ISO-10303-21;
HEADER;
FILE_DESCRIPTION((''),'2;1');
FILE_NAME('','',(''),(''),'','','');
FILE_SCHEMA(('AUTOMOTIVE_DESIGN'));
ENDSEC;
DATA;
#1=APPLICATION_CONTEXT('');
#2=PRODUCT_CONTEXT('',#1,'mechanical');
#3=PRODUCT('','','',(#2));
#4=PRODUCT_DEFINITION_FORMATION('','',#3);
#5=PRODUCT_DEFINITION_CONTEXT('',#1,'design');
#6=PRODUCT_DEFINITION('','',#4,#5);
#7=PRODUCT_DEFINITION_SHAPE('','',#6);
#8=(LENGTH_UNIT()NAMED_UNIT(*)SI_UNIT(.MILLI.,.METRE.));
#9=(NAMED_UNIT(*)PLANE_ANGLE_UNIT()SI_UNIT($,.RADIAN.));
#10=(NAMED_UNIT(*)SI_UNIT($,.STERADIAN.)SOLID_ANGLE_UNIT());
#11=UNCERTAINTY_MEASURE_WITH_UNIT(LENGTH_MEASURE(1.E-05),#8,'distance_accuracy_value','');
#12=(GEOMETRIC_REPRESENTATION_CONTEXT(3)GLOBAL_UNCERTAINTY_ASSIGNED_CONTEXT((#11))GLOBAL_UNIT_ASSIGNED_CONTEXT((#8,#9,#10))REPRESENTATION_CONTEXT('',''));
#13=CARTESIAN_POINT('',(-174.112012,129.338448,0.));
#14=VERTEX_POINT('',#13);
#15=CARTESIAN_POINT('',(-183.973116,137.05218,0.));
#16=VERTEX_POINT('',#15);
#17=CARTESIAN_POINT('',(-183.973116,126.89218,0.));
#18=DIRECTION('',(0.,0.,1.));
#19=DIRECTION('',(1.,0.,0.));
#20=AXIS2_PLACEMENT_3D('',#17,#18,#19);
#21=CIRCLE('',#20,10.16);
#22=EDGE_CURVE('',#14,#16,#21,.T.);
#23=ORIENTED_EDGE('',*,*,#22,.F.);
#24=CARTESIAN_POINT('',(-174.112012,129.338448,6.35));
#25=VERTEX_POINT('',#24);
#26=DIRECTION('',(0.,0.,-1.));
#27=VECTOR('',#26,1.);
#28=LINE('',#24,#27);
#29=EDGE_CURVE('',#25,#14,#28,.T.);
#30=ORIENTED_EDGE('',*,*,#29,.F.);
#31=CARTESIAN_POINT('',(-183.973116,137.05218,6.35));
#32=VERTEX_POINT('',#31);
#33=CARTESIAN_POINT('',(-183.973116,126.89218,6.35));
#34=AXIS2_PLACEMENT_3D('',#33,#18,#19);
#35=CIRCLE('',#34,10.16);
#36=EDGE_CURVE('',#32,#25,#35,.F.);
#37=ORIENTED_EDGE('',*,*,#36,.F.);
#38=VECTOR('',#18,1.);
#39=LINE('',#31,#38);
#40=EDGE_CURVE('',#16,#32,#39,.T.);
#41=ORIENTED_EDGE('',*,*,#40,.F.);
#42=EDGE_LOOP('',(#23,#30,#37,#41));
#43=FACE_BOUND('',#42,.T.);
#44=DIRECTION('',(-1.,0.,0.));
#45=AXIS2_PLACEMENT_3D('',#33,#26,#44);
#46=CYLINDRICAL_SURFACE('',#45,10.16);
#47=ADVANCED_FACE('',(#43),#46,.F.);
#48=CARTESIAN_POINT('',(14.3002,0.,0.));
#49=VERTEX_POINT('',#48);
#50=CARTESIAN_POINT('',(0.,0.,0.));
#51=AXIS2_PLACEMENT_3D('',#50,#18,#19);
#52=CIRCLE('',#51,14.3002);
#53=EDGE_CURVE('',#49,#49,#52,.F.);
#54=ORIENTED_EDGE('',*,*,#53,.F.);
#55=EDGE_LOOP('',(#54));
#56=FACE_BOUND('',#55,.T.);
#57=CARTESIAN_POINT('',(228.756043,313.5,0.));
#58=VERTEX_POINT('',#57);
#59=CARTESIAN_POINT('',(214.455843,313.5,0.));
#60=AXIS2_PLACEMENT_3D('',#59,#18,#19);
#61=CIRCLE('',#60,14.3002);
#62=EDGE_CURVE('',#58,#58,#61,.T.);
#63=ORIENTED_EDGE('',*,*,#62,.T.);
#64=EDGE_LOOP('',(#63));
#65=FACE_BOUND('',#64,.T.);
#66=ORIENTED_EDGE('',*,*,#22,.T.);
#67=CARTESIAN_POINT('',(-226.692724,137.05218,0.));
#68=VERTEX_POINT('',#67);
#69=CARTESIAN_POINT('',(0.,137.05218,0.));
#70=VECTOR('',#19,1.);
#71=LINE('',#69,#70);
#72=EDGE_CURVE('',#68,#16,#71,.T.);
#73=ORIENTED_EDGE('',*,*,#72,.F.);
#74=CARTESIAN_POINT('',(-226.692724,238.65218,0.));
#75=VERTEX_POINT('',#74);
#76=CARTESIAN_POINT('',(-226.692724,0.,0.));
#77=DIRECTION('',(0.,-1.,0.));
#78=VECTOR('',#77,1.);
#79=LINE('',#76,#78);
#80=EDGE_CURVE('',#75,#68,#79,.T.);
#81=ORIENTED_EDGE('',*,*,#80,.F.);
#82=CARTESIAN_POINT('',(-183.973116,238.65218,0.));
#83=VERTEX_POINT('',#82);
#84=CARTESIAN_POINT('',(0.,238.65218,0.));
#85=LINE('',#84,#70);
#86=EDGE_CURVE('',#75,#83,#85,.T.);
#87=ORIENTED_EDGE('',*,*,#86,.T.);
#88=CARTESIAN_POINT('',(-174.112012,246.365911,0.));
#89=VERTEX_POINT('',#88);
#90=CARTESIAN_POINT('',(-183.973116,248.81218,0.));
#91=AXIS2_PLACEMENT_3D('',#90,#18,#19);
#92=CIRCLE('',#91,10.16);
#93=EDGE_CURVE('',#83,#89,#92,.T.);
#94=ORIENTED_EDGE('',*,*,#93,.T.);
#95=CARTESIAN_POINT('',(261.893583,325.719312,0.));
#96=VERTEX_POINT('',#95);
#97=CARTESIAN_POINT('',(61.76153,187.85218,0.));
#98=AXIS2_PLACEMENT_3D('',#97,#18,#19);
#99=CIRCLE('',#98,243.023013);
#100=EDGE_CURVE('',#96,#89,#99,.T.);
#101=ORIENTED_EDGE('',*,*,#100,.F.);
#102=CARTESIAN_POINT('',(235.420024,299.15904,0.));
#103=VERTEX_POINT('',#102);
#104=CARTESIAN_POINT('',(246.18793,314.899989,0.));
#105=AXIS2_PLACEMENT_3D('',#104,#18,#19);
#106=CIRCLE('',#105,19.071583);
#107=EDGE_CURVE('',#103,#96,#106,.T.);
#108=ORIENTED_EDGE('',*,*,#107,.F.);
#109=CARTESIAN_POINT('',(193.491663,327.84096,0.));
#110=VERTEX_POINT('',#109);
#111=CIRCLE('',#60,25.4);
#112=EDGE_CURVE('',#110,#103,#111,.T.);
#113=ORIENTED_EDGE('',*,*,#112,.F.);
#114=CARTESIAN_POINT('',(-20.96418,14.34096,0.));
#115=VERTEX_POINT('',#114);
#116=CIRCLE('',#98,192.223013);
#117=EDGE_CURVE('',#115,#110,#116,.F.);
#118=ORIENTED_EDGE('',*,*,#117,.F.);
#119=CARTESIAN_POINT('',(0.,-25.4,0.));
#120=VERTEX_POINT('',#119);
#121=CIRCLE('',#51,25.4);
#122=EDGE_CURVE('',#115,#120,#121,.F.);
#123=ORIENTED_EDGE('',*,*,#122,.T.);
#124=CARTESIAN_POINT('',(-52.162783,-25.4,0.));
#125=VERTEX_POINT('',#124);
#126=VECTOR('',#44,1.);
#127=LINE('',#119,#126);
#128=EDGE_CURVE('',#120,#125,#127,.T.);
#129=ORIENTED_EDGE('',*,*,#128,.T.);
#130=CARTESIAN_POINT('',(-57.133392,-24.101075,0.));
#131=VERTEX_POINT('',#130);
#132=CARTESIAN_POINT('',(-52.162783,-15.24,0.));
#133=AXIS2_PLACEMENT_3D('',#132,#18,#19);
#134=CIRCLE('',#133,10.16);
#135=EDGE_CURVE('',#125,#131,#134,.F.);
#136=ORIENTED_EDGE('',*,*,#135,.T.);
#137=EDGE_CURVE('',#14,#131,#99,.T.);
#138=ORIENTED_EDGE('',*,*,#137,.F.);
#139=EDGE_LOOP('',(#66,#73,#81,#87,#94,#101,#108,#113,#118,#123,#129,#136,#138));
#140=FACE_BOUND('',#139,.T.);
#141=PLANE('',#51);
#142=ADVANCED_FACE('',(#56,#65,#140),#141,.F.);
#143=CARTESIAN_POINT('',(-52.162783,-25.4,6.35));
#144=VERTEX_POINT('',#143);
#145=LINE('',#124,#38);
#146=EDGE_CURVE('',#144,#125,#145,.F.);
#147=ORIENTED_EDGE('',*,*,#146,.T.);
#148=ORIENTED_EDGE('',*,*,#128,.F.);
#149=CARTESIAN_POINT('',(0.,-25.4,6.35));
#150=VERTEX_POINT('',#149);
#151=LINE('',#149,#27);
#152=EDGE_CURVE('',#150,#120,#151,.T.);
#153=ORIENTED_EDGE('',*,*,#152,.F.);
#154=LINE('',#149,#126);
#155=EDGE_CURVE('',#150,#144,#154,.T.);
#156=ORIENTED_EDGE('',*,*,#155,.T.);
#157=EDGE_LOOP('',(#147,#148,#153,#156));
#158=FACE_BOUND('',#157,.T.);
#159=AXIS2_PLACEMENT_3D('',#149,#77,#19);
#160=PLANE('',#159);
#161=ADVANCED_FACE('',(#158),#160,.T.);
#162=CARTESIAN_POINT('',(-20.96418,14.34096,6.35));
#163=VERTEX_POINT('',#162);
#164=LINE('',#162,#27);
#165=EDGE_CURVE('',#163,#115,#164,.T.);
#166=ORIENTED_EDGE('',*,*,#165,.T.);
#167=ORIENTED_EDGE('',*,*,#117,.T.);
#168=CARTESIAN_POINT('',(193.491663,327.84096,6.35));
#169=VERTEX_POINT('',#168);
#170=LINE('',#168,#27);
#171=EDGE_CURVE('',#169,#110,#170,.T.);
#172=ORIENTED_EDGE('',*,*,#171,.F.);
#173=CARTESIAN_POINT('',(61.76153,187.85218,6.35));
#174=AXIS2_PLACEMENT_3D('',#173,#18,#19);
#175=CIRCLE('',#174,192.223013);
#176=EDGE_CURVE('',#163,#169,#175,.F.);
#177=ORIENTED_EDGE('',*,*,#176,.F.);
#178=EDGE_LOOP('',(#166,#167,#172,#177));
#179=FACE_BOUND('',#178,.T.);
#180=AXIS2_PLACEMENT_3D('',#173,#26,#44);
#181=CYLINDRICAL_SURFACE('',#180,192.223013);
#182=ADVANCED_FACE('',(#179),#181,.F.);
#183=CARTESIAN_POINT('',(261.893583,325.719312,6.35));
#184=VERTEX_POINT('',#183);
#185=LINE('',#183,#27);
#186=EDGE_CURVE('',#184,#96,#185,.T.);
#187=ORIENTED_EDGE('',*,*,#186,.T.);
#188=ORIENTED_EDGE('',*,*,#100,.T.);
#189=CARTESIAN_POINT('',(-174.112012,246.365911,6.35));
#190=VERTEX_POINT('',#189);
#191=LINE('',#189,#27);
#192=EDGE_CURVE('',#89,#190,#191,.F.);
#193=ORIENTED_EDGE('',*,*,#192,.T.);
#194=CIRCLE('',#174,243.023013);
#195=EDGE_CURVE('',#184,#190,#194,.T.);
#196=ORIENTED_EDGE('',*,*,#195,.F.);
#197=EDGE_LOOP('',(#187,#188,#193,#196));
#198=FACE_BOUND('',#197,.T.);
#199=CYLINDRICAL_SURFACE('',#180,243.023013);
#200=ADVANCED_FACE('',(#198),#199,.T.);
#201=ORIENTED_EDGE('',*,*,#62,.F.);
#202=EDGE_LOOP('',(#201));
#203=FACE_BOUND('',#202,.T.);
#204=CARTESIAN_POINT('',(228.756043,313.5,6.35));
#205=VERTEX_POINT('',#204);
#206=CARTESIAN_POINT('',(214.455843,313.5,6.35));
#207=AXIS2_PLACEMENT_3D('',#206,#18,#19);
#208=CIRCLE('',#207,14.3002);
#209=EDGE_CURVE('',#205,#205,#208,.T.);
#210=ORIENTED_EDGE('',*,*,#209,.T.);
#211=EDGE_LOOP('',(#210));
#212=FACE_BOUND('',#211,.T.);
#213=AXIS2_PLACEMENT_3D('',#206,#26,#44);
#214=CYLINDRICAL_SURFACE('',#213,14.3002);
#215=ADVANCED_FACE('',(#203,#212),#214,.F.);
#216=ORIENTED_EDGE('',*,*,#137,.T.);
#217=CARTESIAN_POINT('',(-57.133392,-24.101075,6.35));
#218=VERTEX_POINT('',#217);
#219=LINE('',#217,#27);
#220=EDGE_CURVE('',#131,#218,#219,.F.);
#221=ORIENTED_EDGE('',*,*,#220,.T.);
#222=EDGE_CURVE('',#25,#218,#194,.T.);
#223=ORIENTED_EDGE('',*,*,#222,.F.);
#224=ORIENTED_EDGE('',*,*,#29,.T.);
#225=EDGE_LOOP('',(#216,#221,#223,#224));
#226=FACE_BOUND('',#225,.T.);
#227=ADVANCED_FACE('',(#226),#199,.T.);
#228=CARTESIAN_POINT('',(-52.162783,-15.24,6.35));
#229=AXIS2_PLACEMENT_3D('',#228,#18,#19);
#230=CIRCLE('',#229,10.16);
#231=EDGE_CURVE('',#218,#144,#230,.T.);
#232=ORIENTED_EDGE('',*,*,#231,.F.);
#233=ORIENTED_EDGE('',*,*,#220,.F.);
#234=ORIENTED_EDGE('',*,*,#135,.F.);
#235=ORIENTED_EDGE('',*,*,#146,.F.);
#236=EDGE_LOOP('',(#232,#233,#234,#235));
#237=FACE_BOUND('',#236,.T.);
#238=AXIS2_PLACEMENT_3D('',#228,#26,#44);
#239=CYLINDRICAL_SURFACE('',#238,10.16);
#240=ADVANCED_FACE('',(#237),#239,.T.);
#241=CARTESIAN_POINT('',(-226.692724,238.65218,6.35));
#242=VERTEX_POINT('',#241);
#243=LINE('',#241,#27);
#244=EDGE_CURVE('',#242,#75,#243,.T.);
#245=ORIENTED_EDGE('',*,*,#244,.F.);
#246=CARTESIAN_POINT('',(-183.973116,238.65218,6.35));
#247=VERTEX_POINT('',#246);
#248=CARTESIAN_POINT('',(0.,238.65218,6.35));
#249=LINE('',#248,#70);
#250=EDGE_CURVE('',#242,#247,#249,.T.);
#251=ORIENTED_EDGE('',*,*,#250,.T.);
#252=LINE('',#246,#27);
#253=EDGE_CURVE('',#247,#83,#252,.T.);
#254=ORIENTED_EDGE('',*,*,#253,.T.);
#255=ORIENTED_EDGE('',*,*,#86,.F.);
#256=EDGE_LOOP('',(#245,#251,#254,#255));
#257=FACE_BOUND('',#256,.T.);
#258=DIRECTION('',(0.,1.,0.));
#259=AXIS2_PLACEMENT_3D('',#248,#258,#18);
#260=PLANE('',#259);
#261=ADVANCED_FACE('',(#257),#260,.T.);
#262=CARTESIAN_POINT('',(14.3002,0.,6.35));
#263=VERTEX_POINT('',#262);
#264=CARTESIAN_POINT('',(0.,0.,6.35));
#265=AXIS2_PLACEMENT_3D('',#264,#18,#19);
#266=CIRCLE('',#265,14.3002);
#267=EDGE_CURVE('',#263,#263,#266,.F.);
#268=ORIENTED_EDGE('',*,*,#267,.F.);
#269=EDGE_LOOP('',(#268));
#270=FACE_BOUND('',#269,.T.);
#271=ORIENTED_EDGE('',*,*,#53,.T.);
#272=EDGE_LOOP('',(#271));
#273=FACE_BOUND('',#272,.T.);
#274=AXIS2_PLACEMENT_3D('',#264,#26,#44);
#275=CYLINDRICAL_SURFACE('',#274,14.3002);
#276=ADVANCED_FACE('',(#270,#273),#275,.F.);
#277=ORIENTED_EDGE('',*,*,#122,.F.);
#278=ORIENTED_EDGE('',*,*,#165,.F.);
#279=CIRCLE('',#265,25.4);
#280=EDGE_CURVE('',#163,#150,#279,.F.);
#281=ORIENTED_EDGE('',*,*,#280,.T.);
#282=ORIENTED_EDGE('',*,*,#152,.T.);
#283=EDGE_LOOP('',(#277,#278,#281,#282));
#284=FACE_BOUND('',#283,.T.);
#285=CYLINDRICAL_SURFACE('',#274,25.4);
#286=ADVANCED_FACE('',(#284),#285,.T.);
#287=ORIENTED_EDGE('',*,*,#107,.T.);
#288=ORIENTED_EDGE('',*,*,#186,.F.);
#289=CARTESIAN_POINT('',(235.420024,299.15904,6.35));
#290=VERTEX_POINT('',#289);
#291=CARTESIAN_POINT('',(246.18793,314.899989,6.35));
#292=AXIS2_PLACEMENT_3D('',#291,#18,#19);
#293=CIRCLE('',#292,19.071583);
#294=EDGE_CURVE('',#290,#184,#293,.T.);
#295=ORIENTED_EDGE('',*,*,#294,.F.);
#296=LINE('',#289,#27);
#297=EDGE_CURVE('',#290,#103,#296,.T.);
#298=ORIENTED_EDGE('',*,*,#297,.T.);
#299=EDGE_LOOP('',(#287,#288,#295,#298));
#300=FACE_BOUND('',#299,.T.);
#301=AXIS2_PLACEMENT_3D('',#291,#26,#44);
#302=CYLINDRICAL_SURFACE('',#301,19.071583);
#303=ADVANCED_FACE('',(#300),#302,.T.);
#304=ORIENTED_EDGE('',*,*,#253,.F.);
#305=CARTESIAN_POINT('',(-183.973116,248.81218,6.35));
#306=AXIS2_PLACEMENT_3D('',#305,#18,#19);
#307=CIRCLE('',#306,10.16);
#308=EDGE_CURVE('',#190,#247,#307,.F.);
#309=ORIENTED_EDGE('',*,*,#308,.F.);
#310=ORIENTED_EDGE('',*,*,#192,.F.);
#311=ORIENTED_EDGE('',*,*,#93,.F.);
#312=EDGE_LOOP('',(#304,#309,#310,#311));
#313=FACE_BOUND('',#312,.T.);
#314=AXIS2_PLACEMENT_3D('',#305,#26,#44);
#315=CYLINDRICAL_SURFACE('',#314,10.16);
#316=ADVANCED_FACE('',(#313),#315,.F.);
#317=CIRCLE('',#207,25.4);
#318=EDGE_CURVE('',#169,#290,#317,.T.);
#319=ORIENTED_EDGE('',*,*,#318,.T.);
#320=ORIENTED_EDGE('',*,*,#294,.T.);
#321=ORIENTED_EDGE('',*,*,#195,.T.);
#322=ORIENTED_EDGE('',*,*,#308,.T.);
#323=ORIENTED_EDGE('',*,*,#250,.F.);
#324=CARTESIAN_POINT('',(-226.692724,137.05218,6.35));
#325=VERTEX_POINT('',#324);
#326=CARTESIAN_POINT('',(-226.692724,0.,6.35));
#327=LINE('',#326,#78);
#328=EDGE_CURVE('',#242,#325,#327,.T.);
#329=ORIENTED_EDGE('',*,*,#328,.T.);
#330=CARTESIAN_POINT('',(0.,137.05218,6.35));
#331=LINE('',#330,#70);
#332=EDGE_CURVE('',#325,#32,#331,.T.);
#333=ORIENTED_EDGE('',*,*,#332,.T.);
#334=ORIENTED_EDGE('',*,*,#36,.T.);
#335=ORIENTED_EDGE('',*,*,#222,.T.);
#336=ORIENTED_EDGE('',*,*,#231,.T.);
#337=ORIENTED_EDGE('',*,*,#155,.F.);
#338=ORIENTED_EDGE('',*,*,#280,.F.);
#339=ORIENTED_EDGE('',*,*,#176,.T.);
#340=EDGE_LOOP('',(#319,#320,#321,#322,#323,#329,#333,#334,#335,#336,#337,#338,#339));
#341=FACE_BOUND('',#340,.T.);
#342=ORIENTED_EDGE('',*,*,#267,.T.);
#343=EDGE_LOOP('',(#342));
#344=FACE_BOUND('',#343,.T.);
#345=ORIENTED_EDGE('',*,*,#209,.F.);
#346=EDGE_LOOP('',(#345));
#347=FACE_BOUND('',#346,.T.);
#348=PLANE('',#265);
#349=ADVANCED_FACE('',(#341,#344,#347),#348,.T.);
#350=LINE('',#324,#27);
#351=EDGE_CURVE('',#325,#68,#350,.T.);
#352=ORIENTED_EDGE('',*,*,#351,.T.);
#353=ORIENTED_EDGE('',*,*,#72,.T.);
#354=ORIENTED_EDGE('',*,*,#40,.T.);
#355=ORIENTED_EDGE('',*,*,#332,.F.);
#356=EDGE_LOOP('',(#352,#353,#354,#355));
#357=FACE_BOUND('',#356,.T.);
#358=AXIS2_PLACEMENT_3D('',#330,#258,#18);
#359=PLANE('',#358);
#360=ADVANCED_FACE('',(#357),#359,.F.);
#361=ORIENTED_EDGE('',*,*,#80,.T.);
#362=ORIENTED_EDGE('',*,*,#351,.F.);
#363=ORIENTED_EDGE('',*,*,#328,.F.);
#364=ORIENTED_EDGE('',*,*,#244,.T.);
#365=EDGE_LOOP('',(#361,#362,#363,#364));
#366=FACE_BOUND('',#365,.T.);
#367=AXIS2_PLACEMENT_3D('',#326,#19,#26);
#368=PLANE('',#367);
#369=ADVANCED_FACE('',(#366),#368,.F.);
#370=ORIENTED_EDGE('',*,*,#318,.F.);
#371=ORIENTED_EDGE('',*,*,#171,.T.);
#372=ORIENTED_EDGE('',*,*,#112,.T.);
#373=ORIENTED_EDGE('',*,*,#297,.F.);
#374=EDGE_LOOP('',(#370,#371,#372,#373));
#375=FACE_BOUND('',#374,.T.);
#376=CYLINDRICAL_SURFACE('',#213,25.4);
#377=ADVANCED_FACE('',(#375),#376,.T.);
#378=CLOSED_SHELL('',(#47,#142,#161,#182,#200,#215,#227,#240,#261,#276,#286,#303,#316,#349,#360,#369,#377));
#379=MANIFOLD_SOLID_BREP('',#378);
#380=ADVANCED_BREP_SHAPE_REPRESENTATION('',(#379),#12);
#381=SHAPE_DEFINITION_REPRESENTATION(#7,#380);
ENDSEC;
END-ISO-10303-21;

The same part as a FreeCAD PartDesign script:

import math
import FreeCAD as App
import Part
import Sketcher
Q = App.Units.Quantity


def edges_at(feature, points):
    """Names of the edges that pass closest to the given points."""
    edges = feature.Shape.Edges
    near = lambda p: min(range(len(edges)), key=lambda i: edges[i].distToShape(Part.Vertex(*p))[0])
    return sorted({f"Edge{near(p) + 1}" for p in points})

doc = App.newDocument("Part")
body = doc.addObject("PartDesign::Body", "Body")

# Sketch on XY plane
sketch1 = body.newObject("Sketcher::SketchObject", "Sketch")
sketch1.AttachmentSupport = (doc.getObject("XY_Plane"), [""])
sketch1.MapMode = "FlatFace"
sketch1.addGeometry([
    Part.LineSegment(App.Vector(-54.787569, -25.4, 0), App.Vector(0, -25.4, 0)),  # 0
    Part.ArcOfCircle(Part.Circle(App.Vector(0, 0, 0), App.Vector(0, 0, 1), 25.4), math.radians(-90), math.radians(145.625152)),  # 1
    Part.ArcOfCircle(Part.Circle(App.Vector(61.76153, 187.85218, 0), App.Vector(0, 0, 1), 192.223013), math.radians(46.740917), math.radians(244.509388)),  # 2
    Part.ArcOfCircle(Part.Circle(App.Vector(214.455843, 313.5, 0), App.Vector(0, 0, 1), 25.4), math.radians(145.625152), math.radians(325.625152)),  # 3
    Part.ArcOfCircle(Part.Circle(App.Vector(246.18793, 314.899989, 0), App.Vector(0, 0, 1), 19.071583), math.radians(-124.374848), math.radians(34.562211)),  # 4
    Part.ArcOfCircle(Part.Circle(App.Vector(61.76153, 187.85218, 0), App.Vector(0, 0, 1), 243.023013), math.radians(34.562211), math.radians(167.934269)),  # 5
    Part.LineSegment(App.Vector(-175.892724, 238.65218, 0), App.Vector(-226.692724, 238.65218, 0)),  # 6
    Part.LineSegment(App.Vector(-226.692724, 238.65218, 0), App.Vector(-226.692724, 137.05218, 0)),  # 7
    Part.LineSegment(App.Vector(-226.692724, 137.05218, 0), App.Vector(-175.892724, 137.05218, 0)),  # 8
    Part.ArcOfCircle(Part.Circle(App.Vector(61.76153, 187.85218, 0), App.Vector(0, 0, 1), 243.023013), math.radians(-167.934269), math.radians(-118.658008)),  # 9
    Part.Circle(App.Vector(0, 0, 0), App.Vector(0, 0, 1), 14.3002),  # 10
    Part.Circle(App.Vector(214.455843, 313.5, 0), App.Vector(0, 0, 1), 14.3002),  # 11
], False)
sketch1.addConstraint([
    Sketcher.Constraint("Tangent", 0, 2, 1, 1),
    Sketcher.Constraint("Coincident", 1, 2, 2, 2),
    Sketcher.Constraint("Coincident", 2, 1, 3, 1),
    Sketcher.Constraint("Coincident", 3, 2, 4, 1),
    Sketcher.Constraint("Tangent", 4, 2, 5, 1),
    Sketcher.Constraint("Coincident", 5, 2, 6, 1),
    Sketcher.Constraint("Coincident", 6, 2, 7, 1),
    Sketcher.Constraint("Coincident", 7, 2, 8, 1),
    Sketcher.Constraint("Coincident", 8, 2, 9, 1),
    Sketcher.Constraint("Coincident", 9, 2, 0, 1),
    Sketcher.Constraint("Horizontal", 0),
    Sketcher.Constraint("Horizontal", 6),
    Sketcher.Constraint("Vertical", 7),
    Sketcher.Constraint("Horizontal", 8),
    Sketcher.Constraint("Coincident", 1, 3, -1, 1),
    Sketcher.Constraint("Coincident", 10, 3, -1, 1),
    Sketcher.Constraint("Coincident", 5, 3, 2, 3),
    Sketcher.Constraint("Coincident", 9, 3, 2, 3),
    Sketcher.Constraint("Coincident", 11, 3, 3, 3),
    Sketcher.Constraint("Equal", 1, 3),
    Sketcher.Constraint("Equal", 5, 9),
    Sketcher.Constraint("Equal", 10, 11),
    Sketcher.Constraint("Vertical", 5, 2, 8, 2),
    Sketcher.Constraint("Radius", 1, Q("1 in")),
    Sketcher.Constraint("DistanceX", 6, 2, 6, 1, Q("2 in")),
    Sketcher.Constraint("DistanceY", 7, 2, 7, 1, Q("4 in")),
    Sketcher.Constraint("Diameter", 10, Q("1.126 in")),
    Sketcher.Constraint("Radius", 2, 192.223013),
    Sketcher.Constraint("Radius", 4, 19.071583),
    Sketcher.Constraint("Radius", 5, 243.023013),
    Sketcher.Constraint("DistanceX", 0, 1, 0, 2, 54.787569),
    Sketcher.Constraint("DistanceY", -1, 1, 3, 3, 313.5),
    Sketcher.Constraint("DistanceX", 2, 3, 4, 3, 184.4264),
    Sketcher.Constraint("DistanceX", -1, 1, 2, 3, 61.76153),
    Sketcher.Constraint("DistanceY", -1, 1, 2, 1, 327.84096),
])
pad1 = body.newObject("PartDesign::Pad", "Pad")
pad1.Profile = sketch1
pad1.Length = Q("0.25 in")
doc.recompute()

fillet = body.newObject("PartDesign::Fillet", "Fillet")
fillet.Base = (pad1, edges_at(pad1, [(-54.788, -25.4, 3.175), (-175.893, 137.052, 3.175), (-175.893, 238.652, 3.175)]))
fillet.Radius = Q("0.4 in")

doc.recompute()
